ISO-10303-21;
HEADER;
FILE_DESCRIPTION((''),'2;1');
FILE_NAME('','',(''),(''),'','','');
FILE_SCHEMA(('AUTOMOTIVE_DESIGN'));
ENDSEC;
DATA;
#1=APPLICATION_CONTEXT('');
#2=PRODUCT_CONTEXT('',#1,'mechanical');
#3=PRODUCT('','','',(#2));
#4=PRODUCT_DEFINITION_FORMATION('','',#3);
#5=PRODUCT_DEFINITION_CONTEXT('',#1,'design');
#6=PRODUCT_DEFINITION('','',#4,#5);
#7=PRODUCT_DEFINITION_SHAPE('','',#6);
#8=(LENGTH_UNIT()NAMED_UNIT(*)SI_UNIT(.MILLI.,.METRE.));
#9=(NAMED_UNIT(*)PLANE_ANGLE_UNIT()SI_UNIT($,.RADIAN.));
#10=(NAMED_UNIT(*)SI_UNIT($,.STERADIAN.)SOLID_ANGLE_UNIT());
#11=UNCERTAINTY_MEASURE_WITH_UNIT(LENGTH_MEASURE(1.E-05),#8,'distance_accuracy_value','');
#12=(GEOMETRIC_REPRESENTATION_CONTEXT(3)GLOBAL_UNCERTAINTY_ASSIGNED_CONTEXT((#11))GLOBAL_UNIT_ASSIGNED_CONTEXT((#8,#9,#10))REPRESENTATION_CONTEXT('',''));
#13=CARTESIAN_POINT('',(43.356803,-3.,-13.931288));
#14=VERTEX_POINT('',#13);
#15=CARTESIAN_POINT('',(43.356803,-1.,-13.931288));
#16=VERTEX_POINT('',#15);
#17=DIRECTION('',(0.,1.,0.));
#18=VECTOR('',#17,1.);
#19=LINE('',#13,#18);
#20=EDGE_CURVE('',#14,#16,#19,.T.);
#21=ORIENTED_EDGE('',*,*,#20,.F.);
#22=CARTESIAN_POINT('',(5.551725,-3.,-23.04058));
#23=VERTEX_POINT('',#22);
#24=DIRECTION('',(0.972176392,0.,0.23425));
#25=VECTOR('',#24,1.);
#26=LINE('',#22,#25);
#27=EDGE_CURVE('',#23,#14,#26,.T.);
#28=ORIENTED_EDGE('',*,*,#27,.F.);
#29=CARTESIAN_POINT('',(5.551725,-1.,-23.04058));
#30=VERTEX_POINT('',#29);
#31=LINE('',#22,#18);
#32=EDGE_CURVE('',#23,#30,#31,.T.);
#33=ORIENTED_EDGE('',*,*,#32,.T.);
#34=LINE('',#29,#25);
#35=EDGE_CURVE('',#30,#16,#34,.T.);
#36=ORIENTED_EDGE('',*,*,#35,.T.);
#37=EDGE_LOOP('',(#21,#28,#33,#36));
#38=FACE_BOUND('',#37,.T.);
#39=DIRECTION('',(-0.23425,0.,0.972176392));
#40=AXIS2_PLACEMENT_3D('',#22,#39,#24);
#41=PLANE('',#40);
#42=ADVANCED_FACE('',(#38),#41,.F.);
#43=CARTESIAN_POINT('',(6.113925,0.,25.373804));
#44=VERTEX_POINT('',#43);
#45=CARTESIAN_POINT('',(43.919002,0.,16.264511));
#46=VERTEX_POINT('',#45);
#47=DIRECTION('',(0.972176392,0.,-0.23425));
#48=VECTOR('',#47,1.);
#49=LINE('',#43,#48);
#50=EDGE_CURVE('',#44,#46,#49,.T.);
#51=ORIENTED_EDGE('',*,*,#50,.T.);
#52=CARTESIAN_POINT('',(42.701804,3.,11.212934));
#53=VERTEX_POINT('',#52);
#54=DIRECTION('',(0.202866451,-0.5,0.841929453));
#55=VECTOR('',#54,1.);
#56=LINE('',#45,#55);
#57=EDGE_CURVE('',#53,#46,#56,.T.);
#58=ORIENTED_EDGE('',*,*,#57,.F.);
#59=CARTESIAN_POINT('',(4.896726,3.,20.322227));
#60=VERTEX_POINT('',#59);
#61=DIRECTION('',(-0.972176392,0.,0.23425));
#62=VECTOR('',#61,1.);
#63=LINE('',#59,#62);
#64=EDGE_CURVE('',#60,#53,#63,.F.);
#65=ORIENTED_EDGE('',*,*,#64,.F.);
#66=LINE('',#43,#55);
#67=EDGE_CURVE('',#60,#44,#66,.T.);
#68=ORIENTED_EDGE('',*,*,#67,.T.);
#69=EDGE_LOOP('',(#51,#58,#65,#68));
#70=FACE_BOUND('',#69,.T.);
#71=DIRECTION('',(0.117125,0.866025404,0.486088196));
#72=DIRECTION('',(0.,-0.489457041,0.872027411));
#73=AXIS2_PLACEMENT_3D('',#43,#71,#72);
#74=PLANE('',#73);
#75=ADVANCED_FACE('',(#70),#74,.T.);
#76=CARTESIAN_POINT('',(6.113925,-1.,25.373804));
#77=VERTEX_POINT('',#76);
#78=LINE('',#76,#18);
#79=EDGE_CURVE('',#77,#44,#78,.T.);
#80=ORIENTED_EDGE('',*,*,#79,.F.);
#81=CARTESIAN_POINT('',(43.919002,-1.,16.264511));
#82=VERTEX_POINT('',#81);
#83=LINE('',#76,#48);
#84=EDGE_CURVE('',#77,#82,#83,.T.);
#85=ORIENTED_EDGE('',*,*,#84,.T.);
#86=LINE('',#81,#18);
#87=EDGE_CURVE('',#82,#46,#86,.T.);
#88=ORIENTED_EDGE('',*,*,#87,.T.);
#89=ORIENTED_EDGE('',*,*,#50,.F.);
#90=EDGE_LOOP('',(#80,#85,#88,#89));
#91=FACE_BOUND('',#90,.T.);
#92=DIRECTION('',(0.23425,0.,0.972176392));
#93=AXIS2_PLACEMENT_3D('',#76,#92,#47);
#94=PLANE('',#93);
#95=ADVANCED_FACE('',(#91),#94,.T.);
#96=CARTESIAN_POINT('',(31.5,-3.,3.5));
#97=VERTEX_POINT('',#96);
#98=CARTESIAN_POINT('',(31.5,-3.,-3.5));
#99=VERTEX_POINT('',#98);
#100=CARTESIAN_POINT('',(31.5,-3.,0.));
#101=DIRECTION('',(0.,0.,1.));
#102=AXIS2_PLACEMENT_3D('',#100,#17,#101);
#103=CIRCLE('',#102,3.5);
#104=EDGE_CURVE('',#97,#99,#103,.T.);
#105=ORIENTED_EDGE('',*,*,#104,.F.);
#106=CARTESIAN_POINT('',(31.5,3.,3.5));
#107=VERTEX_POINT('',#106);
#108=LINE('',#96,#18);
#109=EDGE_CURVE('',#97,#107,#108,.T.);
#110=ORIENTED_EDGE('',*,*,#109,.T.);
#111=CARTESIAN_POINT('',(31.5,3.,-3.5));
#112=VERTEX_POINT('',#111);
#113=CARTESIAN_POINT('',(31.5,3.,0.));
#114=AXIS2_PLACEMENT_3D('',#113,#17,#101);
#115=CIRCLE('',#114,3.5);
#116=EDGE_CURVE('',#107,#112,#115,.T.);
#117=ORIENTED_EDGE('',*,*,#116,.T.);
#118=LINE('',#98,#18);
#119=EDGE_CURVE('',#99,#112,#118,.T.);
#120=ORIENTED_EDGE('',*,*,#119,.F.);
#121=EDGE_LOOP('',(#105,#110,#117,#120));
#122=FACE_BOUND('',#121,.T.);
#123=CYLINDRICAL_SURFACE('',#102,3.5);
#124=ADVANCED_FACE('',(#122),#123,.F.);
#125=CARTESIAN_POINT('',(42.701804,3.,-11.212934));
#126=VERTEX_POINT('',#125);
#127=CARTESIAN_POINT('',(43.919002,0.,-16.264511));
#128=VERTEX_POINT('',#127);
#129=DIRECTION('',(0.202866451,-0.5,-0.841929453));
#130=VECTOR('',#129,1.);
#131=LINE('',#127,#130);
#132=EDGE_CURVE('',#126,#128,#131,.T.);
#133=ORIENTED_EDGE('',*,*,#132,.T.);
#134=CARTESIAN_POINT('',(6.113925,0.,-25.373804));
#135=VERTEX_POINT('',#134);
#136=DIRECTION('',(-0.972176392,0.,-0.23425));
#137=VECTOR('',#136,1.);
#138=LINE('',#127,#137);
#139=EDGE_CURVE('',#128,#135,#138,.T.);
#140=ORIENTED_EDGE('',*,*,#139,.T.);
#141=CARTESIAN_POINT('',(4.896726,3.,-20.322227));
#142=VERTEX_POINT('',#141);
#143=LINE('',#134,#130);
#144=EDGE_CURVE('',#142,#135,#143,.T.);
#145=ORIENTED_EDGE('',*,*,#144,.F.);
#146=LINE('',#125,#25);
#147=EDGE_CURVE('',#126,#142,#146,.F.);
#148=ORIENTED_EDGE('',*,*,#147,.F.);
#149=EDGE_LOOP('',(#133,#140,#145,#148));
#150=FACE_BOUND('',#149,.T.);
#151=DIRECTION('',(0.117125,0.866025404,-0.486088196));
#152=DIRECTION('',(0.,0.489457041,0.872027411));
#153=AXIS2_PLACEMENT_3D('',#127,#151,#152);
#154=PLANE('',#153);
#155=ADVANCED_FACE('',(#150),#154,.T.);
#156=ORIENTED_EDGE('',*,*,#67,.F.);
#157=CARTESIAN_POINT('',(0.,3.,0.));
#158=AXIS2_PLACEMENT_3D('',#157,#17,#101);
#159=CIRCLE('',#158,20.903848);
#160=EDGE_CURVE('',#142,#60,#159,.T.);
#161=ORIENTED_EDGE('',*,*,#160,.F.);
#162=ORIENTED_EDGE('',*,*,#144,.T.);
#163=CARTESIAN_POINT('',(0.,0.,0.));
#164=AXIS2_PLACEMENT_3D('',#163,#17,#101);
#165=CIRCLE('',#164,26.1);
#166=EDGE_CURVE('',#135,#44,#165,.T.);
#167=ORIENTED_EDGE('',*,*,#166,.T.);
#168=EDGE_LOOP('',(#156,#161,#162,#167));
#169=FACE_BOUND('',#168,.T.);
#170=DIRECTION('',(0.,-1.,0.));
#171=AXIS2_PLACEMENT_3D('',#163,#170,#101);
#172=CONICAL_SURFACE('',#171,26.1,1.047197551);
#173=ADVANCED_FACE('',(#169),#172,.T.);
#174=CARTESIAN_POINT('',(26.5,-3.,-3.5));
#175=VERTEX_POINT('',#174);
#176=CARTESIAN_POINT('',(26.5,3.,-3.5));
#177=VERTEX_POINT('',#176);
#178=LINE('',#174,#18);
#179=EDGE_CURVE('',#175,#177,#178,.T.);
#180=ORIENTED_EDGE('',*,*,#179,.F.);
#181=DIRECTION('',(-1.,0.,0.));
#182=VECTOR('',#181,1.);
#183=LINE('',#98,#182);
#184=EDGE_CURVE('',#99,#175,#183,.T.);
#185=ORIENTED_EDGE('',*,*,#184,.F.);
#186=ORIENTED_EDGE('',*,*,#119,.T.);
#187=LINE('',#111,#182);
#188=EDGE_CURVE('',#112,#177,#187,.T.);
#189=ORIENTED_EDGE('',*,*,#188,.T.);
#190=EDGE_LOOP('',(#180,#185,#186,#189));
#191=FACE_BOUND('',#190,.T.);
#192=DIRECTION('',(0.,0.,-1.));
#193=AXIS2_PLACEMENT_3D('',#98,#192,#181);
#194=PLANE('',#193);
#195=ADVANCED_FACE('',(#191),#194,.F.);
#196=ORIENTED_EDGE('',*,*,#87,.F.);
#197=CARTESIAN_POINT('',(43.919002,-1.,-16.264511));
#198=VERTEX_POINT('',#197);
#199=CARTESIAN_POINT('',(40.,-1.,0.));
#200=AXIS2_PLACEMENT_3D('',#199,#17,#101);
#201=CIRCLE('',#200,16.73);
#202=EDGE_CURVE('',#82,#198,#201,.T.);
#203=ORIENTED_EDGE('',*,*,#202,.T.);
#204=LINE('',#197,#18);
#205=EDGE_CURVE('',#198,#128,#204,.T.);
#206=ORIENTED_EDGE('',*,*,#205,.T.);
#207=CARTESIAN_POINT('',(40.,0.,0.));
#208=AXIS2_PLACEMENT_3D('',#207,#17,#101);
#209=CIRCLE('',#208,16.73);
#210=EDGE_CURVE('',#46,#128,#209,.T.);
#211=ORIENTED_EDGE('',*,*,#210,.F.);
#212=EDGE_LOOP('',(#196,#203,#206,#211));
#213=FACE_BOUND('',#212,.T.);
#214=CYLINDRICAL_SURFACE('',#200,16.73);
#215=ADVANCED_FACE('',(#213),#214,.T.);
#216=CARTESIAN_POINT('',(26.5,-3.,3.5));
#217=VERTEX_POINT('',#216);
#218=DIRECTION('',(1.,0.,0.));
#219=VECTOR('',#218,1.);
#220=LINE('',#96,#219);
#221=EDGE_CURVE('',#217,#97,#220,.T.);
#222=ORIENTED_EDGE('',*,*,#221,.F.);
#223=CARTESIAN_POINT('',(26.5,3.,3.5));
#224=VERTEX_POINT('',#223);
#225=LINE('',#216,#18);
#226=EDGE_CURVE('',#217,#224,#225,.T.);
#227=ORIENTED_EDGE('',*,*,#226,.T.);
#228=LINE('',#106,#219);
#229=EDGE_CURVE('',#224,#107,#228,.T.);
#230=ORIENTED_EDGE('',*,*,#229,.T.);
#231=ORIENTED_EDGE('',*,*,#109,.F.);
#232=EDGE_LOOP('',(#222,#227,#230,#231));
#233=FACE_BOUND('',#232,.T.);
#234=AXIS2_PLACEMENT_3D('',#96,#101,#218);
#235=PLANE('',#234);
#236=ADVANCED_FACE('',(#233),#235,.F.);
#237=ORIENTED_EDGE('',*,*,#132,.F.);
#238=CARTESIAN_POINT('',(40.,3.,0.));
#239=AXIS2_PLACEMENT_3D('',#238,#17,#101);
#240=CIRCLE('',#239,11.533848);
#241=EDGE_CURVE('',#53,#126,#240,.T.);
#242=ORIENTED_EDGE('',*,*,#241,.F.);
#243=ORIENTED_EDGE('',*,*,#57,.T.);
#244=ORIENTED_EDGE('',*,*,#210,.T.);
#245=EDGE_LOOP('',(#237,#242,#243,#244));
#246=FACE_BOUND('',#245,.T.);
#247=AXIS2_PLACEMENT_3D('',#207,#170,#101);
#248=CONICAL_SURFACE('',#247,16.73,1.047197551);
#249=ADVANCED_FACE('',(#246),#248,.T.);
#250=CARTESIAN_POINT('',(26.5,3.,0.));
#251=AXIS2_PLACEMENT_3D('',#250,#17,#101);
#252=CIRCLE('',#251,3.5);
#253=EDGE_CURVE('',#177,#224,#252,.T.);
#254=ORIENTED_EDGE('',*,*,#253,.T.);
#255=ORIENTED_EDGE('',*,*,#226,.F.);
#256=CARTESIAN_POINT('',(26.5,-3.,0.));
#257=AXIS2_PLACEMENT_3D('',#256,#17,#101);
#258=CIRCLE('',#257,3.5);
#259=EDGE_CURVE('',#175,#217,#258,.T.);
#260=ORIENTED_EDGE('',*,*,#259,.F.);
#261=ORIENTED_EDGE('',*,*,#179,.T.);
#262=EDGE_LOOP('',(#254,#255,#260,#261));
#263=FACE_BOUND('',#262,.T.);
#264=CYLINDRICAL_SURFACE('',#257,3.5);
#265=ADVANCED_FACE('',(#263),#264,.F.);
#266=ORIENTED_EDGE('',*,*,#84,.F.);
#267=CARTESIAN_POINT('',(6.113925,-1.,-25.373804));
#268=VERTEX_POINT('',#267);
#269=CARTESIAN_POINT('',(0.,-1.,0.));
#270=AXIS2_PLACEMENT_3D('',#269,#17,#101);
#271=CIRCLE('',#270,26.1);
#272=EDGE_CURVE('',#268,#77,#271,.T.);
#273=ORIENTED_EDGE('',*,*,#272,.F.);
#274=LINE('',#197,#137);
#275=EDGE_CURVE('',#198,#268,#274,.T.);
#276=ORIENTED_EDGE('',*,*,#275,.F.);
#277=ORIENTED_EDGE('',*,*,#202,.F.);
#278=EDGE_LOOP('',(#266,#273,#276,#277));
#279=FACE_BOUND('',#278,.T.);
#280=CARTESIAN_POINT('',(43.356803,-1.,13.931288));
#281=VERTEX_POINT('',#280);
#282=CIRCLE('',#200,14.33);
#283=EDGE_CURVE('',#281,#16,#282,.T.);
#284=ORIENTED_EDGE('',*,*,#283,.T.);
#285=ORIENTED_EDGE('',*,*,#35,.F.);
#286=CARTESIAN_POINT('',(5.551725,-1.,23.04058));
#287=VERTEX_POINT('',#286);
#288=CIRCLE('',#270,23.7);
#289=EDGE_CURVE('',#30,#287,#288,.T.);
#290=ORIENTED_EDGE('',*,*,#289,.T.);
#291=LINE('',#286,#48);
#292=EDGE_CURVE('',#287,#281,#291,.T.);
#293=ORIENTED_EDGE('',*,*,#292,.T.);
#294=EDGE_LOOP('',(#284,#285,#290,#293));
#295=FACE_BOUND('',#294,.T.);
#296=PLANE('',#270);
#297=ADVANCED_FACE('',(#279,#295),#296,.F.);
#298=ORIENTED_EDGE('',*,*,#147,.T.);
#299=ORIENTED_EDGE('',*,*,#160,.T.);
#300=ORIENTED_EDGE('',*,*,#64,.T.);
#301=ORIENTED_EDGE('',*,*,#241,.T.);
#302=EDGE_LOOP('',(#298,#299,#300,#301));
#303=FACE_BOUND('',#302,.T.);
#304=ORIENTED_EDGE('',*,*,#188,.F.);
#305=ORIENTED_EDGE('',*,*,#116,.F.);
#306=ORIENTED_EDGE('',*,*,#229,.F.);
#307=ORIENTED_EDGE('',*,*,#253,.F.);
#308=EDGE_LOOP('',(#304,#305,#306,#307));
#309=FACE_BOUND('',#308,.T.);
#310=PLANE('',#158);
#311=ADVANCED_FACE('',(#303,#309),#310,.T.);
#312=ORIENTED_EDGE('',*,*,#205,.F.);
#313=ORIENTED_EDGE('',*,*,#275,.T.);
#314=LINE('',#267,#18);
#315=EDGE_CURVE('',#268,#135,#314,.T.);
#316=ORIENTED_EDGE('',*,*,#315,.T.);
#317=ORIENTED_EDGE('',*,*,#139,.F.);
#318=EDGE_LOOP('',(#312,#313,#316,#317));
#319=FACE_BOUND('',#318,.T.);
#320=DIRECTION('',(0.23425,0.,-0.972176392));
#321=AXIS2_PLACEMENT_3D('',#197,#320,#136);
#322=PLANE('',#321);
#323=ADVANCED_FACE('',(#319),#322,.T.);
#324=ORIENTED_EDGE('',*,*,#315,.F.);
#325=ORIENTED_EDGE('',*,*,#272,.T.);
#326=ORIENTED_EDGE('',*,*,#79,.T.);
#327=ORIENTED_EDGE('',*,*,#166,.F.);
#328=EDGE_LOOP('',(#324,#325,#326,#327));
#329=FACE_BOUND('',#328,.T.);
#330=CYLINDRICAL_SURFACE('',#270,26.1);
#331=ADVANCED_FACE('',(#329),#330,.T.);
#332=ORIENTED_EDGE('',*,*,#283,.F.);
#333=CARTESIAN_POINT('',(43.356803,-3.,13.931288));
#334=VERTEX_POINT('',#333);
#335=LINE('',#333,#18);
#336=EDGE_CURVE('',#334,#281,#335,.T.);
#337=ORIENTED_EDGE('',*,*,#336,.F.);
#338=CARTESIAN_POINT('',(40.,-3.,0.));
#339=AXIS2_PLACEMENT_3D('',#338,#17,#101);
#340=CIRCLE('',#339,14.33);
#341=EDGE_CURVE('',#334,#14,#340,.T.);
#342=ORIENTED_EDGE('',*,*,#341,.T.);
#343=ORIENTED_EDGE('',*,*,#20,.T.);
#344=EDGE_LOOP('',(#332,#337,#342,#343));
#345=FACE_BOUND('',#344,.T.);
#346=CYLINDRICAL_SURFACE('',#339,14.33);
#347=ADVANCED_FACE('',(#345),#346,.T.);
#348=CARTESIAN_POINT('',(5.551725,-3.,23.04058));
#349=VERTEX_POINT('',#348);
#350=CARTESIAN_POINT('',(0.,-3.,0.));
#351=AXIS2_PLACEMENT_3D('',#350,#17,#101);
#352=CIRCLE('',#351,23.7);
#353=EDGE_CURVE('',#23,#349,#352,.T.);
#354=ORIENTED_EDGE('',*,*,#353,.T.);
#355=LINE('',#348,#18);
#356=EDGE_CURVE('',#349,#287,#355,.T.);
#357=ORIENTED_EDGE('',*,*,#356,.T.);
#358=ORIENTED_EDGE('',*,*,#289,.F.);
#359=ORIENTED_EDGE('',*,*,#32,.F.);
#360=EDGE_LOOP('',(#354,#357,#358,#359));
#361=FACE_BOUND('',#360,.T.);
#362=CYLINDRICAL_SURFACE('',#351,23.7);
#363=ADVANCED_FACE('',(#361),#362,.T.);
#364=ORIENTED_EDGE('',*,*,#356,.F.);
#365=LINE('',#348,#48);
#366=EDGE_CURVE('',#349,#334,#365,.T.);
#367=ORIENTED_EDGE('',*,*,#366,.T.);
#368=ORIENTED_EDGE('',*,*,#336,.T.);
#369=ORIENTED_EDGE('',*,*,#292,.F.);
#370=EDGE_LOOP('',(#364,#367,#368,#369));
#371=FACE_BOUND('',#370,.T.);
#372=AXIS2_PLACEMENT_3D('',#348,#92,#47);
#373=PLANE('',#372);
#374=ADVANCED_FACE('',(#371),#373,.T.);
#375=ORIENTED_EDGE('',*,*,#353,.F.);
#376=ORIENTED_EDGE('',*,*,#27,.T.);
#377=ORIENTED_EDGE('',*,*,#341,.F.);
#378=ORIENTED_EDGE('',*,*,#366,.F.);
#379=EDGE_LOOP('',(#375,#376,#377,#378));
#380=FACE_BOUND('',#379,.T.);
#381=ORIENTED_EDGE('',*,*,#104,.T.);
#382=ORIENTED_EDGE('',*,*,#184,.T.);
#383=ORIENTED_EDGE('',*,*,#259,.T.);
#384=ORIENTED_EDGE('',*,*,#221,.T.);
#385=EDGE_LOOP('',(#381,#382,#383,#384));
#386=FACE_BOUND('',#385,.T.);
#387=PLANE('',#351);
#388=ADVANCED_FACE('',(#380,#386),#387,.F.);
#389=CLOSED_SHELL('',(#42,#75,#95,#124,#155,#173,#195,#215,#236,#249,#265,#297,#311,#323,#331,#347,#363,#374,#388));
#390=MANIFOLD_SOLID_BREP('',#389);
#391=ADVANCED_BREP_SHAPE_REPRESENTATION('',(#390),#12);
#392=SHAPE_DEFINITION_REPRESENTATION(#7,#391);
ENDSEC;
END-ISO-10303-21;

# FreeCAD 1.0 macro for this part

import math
import FreeCAD as App
import Part
import Sketcher
from FreeCAD import Vector

doc = App.newDocument("Part")
body = doc.addObject("PartDesign::Body", "Body")

sketch1 = body.newObject("Sketcher::SketchObject", "Sketch")
sketch1.AttachmentSupport = (doc.getObject("XZ_Plane"), [""])
sketch1.MapMode = "FlatFace"
sketch1.addGeometry([
    Part.LineSegment(Vector(6, 25, 0), Vector(44, 16, 0)),
    Part.ArcOfCircle(Part.Circle(Vector(40, 0, 0), Vector(0, 0, 1), 17), math.radians(-76), math.radians(76)),
    Part.LineSegment(Vector(44, -16, 0), Vector(6, -25, 0)),
    Part.ArcOfCircle(Part.Circle(Vector(0, 0, 0), Vector(0, 0, 1), 26), math.radians(76), math.radians(284)),
], False)
sketch1.addConstraint([
    Sketcher.Constraint("Tangent", 0, 2, 1, 2),
    Sketcher.Constraint("Tangent", 1, 1, 2, 1),
    Sketcher.Constraint("Tangent", 2, 2, 3, 2),
    Sketcher.Constraint("Tangent", 3, 1, 0, 1),
    Sketcher.Constraint("Coincident", 3, 3, -1, 1),
    Sketcher.Constraint("PointOnObject", 1, 3, -1),
    Sketcher.Constraint("Radius", 3, 26.1),
    Sketcher.Constraint("Radius", 1, 16.73),
    Sketcher.Constraint("DistanceX", -1, 1, 1, 3, 40.0),
])
pad1 = body.newObject("PartDesign::Pad", "Pad")
pad1.Profile = sketch1
pad1.Length = 3
pad1.Reversed = True
pad1.TaperAngle = -60

sketch2 = body.newObject("Sketcher::SketchObject", "Sketch001")
sketch2.AttachmentSupport = (doc.getObject("XZ_Plane"), [""])
sketch2.MapMode = "FlatFace"
sketch2.addGeometry([
    Part.LineSegment(Vector(6, 25, 0), Vector(44, 16, 0)),
    Part.ArcOfCircle(Part.Circle(Vector(40, 0, 0), Vector(0, 0, 1), 17), math.radians(-76), math.radians(76)),
    Part.LineSegment(Vector(44, -16, 0), Vector(6, -25, 0)),
    Part.ArcOfCircle(Part.Circle(Vector(0, 0, 0), Vector(0, 0, 1), 26), math.radians(76), math.radians(284)),
], False)
sketch2.addConstraint([
    Sketcher.Constraint("Tangent", 0, 2, 1, 2),
    Sketcher.Constraint("Tangent", 1, 1, 2, 1),
    Sketcher.Constraint("Tangent", 2, 2, 3, 2),
    Sketcher.Constraint("Tangent", 3, 1, 0, 1),
    Sketcher.Constraint("Coincident", 3, 3, -1, 1),
    Sketcher.Constraint("PointOnObject", 1, 3, -1),
    Sketcher.Constraint("Radius", 3, 26.1),
    Sketcher.Constraint("Radius", 1, 16.73),
    Sketcher.Constraint("DistanceX", -1, 1, 1, 3, 40.0),
])
pad2 = body.newObject("PartDesign::Pad", "Pad001")
pad2.Profile = sketch2
pad2.Length = 1

sketch3 = body.newObject("Sketcher::SketchObject", "Sketch002")
sketch3.AttachmentSupport = (doc.getObject("XZ_Plane"), [""])
sketch3.MapMode = "FlatFace"
sketch3.addGeometry([
    Part.LineSegment(Vector(43, -14, 0), Vector(6, -23, 0)),
    Part.ArcOfCircle(Part.Circle(Vector(0, 0, 0), Vector(0, 0, 1), 24), math.radians(76), math.radians(284)),
    Part.LineSegment(Vector(6, 23, 0), Vector(43, 14, 0)),
    Part.ArcOfCircle(Part.Circle(Vector(40, 0, 0), Vector(0, 0, 1), 14), math.radians(-76), math.radians(76)),
], False)
sketch3.addConstraint([
    Sketcher.Constraint("Tangent", 0, 2, 1, 2),
    Sketcher.Constraint("Tangent", 1, 1, 2, 1),
    Sketcher.Constraint("Tangent", 2, 2, 3, 2),
    Sketcher.Constraint("Tangent", 3, 1, 0, 1),
    Sketcher.Constraint("Coincident", 1, 3, -1, 1),
    Sketcher.Constraint("PointOnObject", 3, 3, -1),
    Sketcher.Constraint("Radius", 1, 23.7),
    Sketcher.Constraint("Radius", 3, 14.33),
    Sketcher.Constraint("DistanceX", -1, 1, 3, 3, 40.0),
])
pad3 = body.newObject("PartDesign::Pad", "Pad002")
pad3.Profile = sketch3
pad3.Length = 3

sketch4 = body.newObject("Sketcher::SketchObject", "Sketch003")
sketch4.AttachmentSupport = (doc.getObject("XZ_Plane"), [""])
sketch4.MapMode = "FlatFace"
sketch4.AttachmentOffset = App.Placement(Vector(0, 0, -3), App.Rotation())
sketch4.addGeometry([
    Part.LineSegment(Vector(26.5, 3.5, 0), Vector(31.5, 3.5, 0)),
    Part.ArcOfCircle(Part.Circle(Vector(31.5, 0, 0), Vector(0, 0, 1), 3.5), math.radians(-90), math.radians(90)),
    Part.LineSegment(Vector(31.5, -3.5, 0), Vector(26.5, -3.5, 0)),
    Part.ArcOfCircle(Part.Circle(Vector(26.5, 0, 0), Vector(0, 0, 1), 3.5), math.radians(90), math.radians(270)),
], False)
sketch4.addConstraint([
    Sketcher.Constraint("Tangent", 0, 2, 1, 2),
    Sketcher.Constraint("Tangent", 1, 1, 2, 1),
    Sketcher.Constraint("Tangent", 2, 2, 3, 2),
    Sketcher.Constraint("Tangent", 3, 1, 0, 1),
    Sketcher.Constraint("Horizontal", 0),
    Sketcher.Constraint("Horizontal", 2),
    Sketcher.Constraint("PointOnObject", 1, 3, -1),
    Sketcher.Constraint("Radius", 1, 3.5),
    Sketcher.Constraint("DistanceX", 0, 1, 0, 2, 5.0),
    Sketcher.Constraint("DistanceX", -1, 1, 1, 3, 31.5),
])
pocket1 = body.newObject("PartDesign::Pocket", "Pocket")
pocket1.Profile = sketch4
pocket1.Type = "ThroughAll"
pocket1.Reversed = True

doc.recompute()
